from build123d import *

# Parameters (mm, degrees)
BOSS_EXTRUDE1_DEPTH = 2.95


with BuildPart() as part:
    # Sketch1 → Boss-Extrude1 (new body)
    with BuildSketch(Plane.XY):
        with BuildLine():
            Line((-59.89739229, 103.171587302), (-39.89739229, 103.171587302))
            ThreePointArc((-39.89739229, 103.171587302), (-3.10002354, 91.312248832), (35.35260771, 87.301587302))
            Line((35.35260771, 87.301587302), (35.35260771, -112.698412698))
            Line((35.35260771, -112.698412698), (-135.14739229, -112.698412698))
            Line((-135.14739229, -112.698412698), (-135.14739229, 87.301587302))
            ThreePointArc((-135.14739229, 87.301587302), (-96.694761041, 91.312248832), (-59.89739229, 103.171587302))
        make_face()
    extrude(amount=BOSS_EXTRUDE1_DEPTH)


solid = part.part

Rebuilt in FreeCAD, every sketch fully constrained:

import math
import FreeCAD as App
import Part
import Sketcher
Q = App.Units.Quantity

doc = App.newDocument("Part")
body = doc.addObject("PartDesign::Body", "Body")

sketch1 = body.newObject("Sketcher::SketchObject", "Sketch")
sketch1.AttachmentSupport = (doc.getObject("XY_Plane"), [""])
sketch1.MapMode = "FlatFace"
sketch1.addGeometry([
    Part.LineSegment(App.Vector(-40, 103, 0), App.Vector(-60, 103, 0)),
    Part.ArcOfCircle(Part.Circle(App.Vector(-135, 274, 0), App.Vector(0, 0, 1), 186), math.radians(-90), math.radians(-66)),
    Part.LineSegment(App.Vector(-135, 87, 0), App.Vector(-135, -113, 0)),
    Part.LineSegment(App.Vector(-135, -113, 0), App.Vector(35, -113, 0)),
    Part.LineSegment(App.Vector(35, -113, 0), App.Vector(35, 87, 0)),
    Part.ArcOfCircle(Part.Circle(App.Vector(35, 274, 0), App.Vector(0, 0, 1), 186), math.radians(-114), math.radians(-90)),
], False)
sketch1.addConstraint([
    Sketcher.Constraint("Coincident", 0, 2, 1, 2),
    Sketcher.Constraint("Coincident", 1, 1, 2, 1),
    Sketcher.Constraint("Coincident", 2, 2, 3, 1),
    Sketcher.Constraint("Coincident", 3, 2, 4, 1),
    Sketcher.Constraint("Coincident", 4, 2, 5, 2),
    Sketcher.Constraint("Coincident", 5, 1, 0, 1),
    Sketcher.Constraint("Horizontal", 0),
    Sketcher.Constraint("Vertical", 2),
    Sketcher.Constraint("Horizontal", 3),
    Sketcher.Constraint("Vertical", 4),
    Sketcher.Constraint("Equal", 1, 5),
    Sketcher.Constraint("Horizontal", 1, 3, 5, 3),
    Sketcher.Constraint("Vertical", 5, 3, 3, 2),
    Sketcher.Constraint("DistanceX", 0, 2, 0, 1, Q("20 mm")),
    Sketcher.Constraint("DistanceY", 2, 2, 2, 1, Q("200 mm")),
    Sketcher.Constraint("DistanceX", 3, 1, 3, 2, Q("170.5 mm")),
    Sketcher.Constraint("DistanceX", 1, 3, 5, 3, Q("170.5 mm")),
    Sketcher.Constraint("DistanceY", 1, 1, 0, 2, Q("15.87 mm")),
    Sketcher.Constraint("DistanceX", 1, 3, -1, 1, Q("135.147392 mm")),
    Sketcher.Constraint("DistanceY", -1, 1, 1, 3, Q("273.641203 mm")),
])
pad1 = body.newObject("PartDesign::Pad", "Pad")
pad1.Profile = sketch1
pad1.Length = 2.95

doc.recompute()
